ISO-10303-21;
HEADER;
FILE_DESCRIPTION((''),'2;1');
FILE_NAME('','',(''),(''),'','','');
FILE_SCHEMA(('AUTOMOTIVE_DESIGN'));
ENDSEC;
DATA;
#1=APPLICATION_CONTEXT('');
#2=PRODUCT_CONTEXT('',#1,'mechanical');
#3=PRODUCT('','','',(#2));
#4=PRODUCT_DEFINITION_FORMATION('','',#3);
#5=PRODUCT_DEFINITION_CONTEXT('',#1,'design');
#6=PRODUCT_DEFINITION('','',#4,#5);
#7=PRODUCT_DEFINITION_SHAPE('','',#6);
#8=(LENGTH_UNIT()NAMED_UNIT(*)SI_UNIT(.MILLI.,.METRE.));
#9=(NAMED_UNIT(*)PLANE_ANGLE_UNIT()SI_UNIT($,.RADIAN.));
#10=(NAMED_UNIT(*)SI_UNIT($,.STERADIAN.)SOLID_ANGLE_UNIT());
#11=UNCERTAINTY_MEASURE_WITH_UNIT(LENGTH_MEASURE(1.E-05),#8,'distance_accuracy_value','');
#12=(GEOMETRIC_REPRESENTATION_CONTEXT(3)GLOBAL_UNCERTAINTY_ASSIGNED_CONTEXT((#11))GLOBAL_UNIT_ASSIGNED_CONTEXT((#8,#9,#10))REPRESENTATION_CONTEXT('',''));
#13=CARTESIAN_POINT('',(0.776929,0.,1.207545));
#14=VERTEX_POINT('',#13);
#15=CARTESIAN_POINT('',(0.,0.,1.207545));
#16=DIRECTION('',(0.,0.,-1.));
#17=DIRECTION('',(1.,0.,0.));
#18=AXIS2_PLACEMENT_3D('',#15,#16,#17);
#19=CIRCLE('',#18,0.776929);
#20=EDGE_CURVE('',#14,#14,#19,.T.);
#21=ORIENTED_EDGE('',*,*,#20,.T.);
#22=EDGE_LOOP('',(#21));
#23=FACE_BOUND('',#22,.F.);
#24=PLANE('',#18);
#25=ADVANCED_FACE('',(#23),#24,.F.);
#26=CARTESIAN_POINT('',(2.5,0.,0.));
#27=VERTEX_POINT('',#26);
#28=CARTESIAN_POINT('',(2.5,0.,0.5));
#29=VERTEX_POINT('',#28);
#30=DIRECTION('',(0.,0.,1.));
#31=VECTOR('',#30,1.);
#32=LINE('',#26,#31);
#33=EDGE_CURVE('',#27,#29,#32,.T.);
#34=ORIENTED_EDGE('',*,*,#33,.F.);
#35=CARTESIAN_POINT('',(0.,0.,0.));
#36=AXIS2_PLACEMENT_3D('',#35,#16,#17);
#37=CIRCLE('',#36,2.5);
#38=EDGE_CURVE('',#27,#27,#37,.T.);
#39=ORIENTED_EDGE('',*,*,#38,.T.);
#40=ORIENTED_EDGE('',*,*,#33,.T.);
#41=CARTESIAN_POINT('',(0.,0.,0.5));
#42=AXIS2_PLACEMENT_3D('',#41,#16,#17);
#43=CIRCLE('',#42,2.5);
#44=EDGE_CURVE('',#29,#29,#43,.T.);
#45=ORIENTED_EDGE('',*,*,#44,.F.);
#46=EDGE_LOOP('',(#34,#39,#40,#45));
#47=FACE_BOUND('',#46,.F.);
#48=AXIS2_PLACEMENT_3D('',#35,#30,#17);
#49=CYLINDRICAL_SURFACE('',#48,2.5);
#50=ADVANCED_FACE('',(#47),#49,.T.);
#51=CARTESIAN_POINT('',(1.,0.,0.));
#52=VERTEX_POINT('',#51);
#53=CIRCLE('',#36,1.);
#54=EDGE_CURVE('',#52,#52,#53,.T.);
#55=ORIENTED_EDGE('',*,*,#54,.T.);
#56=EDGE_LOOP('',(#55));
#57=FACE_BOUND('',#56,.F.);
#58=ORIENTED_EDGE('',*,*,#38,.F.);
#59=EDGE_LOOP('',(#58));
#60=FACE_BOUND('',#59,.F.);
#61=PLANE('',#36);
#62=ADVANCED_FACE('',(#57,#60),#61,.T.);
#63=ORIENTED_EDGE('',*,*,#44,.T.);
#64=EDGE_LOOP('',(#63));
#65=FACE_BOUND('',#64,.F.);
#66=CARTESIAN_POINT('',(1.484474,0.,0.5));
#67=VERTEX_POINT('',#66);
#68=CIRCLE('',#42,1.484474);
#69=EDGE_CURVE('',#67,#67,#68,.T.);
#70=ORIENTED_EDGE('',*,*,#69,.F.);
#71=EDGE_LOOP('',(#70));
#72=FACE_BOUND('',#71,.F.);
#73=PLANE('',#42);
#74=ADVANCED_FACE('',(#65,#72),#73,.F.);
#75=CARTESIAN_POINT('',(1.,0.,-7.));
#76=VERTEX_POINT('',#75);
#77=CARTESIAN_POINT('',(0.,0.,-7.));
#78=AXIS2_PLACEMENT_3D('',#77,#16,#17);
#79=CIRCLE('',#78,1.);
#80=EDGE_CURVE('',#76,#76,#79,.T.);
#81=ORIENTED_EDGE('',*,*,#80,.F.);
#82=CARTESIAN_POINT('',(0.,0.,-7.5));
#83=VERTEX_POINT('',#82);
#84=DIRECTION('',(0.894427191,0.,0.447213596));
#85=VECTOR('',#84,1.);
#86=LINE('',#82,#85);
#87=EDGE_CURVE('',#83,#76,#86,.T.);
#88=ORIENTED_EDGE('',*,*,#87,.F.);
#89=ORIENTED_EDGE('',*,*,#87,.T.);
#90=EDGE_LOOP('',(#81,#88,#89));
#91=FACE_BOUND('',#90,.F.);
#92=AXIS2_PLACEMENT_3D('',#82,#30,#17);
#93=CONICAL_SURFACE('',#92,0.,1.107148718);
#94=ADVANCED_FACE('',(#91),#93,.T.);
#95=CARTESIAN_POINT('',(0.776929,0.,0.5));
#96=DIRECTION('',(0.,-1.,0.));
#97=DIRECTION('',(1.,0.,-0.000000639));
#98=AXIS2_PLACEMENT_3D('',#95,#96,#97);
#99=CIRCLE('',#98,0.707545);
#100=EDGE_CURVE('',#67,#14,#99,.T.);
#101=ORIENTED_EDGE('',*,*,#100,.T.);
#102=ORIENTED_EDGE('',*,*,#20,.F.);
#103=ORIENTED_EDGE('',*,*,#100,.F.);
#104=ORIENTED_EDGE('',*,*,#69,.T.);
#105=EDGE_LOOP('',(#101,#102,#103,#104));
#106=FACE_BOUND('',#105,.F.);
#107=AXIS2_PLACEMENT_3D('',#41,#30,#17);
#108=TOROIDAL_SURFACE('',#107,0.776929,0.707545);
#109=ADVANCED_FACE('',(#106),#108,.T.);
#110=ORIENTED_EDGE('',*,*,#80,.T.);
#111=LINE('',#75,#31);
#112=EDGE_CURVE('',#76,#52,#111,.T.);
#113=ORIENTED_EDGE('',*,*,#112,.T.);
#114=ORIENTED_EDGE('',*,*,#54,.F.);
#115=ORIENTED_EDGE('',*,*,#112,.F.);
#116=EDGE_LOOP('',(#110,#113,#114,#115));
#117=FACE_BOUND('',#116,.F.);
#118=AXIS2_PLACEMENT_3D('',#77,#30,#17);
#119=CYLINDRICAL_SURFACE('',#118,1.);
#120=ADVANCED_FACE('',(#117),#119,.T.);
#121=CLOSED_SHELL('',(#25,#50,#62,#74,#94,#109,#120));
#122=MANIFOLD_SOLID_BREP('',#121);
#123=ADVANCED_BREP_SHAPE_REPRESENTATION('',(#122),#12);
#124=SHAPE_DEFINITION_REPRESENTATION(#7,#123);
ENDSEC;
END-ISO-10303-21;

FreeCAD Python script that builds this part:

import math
import FreeCAD as App
import Part
import Sketcher
Q = App.Units.Quantity

doc = App.newDocument("Part")
body = doc.addObject("PartDesign::Body", "Body")

# Sketch on XZ plane
sketch1 = body.newObject("Sketcher::SketchObject", "Sketch")
sketch1.AttachmentSupport = (doc.getObject("XZ_Plane"), [""])
sketch1.MapMode = "FlatFace"
sketch1.addGeometry([
    Part.LineSegment(App.Vector(0, -7.5, 0), App.Vector(1, -7, 0)),  # 0
    Part.LineSegment(App.Vector(1, -7, 0), App.Vector(1, 0, 0)),  # 1
    Part.LineSegment(App.Vector(1, 0, 0), App.Vector(2.5, 0, 0)),  # 2
    Part.LineSegment(App.Vector(2.5, 0, 0), App.Vector(2.5, 0.5, 0)),  # 3
    Part.LineSegment(App.Vector(2.5, 0.5, 0), App.Vector(1.484474, 0.5, 0)),  # 4
    Part.ArcOfCircle(Part.Circle(App.Vector(0.776929, 0.5, 0), App.Vector(0, 0, 1), 0.707545), math.radians(-0.000037), math.radians(90.000037)),  # 5
    Part.LineSegment(App.Vector(0.776929, 1.207545, 0), App.Vector(0, 1.207545, 0)),  # 6
    Part.LineSegment(App.Vector(0, 1.207545, 0), App.Vector(0, -7.5, 0)),  # 7
], False)
sketch1.addConstraint([
    Sketcher.Constraint("Coincident", 0, 2, 1, 1),
    Sketcher.Constraint("Coincident", 1, 2, 2, 1),
    Sketcher.Constraint("Coincident", 2, 2, 3, 1),
    Sketcher.Constraint("Coincident", 3, 2, 4, 1),
    Sketcher.Constraint("Coincident", 4, 2, 5, 1),
    Sketcher.Constraint("Tangent", 5, 2, 6, 1),
    Sketcher.Constraint("Coincident", 6, 2, 7, 1),
    Sketcher.Constraint("Coincident", 7, 2, 0, 1),
    Sketcher.Constraint("Vertical", 1),
    Sketcher.Constraint("Horizontal", 2),
    Sketcher.Constraint("Vertical", 3),
    Sketcher.Constraint("Horizontal", 4),
    Sketcher.Constraint("Horizontal", 6),
    Sketcher.Constraint("Vertical", 7),
    Sketcher.Constraint("PointOnObject", 1, 2, -1),
    Sketcher.Constraint("PointOnObject", 6, 2, -2),
    Sketcher.Constraint("Horizontal", 5, 3, 3, 2),
    Sketcher.Constraint("DistanceY", 1, 1, 1, 2, Q("7 mm")),
    Sketcher.Constraint("DistanceX", 2, 1, 2, 2, Q("1.5 mm")),
    Sketcher.Constraint("DistanceY", 3, 1, 3, 2, Q("0.5 mm")),
    Sketcher.Constraint("DistanceX", -1, 1, 0, 2, Q("1 mm")),
    Sketcher.Constraint("DistanceY", 7, 2, 5, 3, Q("8 mm")),
    Sketcher.Constraint("Radius", 5, Q("0.707545 mm")),
    Sketcher.Constraint("DistanceX", 6, 2, 6, 1, Q("0.776929 mm")),
])
revolution = body.newObject("PartDesign::Revolution", "Revolution")
revolution.Profile = sketch1
revolution.ReferenceAxis = (sketch1, ["V_Axis"])
revolution.Angle = 360

doc.recompute()
